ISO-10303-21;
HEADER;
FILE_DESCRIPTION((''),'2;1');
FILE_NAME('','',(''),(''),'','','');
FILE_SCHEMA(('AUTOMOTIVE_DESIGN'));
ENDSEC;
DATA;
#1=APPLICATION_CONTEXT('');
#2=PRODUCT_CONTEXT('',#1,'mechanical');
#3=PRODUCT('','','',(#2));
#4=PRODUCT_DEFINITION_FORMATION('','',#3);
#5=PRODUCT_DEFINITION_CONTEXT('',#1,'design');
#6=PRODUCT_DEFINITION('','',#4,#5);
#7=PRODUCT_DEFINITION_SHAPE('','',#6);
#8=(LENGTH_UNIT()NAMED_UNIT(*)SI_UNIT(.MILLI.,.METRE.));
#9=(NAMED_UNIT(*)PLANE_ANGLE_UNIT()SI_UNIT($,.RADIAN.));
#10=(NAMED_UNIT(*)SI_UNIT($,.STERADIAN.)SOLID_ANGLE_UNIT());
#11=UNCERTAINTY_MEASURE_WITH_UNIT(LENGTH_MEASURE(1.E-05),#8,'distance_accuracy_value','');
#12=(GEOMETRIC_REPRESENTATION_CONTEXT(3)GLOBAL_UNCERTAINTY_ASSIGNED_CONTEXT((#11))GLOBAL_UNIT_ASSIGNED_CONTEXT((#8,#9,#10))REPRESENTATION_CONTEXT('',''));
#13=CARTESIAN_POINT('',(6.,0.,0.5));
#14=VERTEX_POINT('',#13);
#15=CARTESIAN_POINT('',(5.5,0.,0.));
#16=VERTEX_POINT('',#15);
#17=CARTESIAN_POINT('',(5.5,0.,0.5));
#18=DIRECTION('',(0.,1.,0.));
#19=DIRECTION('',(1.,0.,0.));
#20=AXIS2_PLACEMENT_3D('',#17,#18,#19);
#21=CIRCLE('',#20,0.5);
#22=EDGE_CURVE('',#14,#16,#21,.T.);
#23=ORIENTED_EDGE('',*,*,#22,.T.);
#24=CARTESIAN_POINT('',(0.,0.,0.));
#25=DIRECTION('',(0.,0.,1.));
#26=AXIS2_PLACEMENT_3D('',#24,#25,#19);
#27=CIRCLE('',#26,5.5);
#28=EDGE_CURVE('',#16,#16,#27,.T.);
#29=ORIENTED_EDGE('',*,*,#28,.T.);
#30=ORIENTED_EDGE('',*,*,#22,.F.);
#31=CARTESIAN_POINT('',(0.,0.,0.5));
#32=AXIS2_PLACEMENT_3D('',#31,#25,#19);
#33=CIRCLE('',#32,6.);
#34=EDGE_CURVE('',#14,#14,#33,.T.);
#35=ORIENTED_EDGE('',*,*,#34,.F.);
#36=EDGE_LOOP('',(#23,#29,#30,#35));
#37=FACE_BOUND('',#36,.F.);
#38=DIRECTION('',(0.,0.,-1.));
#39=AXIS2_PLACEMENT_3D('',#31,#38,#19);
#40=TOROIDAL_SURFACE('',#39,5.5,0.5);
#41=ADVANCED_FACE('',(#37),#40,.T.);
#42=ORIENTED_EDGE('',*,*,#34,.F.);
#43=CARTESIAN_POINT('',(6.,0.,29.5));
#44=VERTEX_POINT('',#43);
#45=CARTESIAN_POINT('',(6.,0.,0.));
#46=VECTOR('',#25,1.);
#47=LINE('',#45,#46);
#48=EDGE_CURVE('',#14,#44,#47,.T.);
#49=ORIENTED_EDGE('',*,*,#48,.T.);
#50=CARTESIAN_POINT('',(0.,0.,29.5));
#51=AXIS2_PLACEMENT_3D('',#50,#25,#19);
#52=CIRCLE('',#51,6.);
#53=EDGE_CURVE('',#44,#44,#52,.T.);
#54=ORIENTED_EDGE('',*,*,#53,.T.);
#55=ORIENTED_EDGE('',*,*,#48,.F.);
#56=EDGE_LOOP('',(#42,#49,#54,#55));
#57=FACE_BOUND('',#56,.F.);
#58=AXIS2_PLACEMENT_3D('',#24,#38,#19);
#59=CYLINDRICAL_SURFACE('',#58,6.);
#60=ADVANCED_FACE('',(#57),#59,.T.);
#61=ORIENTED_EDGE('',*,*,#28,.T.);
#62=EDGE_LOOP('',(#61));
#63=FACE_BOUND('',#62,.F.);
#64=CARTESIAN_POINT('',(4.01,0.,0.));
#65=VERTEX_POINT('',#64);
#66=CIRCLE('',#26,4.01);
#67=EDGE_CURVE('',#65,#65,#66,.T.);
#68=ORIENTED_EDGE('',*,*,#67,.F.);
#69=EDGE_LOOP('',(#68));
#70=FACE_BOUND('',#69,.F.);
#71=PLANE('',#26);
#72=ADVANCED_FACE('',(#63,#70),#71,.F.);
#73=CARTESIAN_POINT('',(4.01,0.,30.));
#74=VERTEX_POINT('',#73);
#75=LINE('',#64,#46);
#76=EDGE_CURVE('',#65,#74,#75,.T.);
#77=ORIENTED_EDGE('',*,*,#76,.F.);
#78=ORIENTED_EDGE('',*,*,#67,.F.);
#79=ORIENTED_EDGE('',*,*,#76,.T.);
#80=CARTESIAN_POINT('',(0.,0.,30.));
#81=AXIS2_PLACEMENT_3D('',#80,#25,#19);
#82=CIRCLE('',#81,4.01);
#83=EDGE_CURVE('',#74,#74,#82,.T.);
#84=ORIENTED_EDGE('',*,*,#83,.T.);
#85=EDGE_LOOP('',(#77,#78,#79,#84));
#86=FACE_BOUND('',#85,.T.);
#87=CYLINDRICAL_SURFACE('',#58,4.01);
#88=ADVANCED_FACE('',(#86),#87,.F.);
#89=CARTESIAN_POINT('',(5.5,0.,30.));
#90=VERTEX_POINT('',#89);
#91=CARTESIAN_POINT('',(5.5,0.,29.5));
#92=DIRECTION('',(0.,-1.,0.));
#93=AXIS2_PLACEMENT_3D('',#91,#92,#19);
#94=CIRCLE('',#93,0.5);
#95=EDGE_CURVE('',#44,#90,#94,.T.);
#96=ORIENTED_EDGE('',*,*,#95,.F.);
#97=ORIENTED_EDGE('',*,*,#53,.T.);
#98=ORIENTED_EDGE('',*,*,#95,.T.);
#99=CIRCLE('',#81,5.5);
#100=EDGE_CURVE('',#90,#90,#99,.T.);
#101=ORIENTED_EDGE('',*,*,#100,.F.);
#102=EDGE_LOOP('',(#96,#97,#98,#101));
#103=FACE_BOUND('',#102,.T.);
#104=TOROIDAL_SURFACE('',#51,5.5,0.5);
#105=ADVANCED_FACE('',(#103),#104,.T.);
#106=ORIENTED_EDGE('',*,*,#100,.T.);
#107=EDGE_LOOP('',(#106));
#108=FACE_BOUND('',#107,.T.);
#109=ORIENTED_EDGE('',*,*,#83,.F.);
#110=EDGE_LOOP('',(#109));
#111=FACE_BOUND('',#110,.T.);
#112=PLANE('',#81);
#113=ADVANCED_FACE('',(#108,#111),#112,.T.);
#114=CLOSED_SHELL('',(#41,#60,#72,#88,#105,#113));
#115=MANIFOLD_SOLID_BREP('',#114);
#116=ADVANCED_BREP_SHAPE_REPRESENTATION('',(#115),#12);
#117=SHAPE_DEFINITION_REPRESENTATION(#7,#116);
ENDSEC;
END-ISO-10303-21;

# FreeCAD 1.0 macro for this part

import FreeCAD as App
import Part
import Sketcher
from FreeCAD import Vector


def edges_at(feature, points):
    """Names of the edges that pass closest to the given points."""
    edges = feature.Shape.Edges
    near = lambda p: min(range(len(edges)), key=lambda i: edges[i].distToShape(Part.Vertex(*p))[0])
    return sorted({f"Edge{near(p) + 1}" for p in points})

doc = App.newDocument("Part")
body = doc.addObject("PartDesign::Body", "Body")

# Sketch on XY plane
sketch1 = body.newObject("Sketcher::SketchObject", "Sketch")
sketch1.AttachmentSupport = (doc.getObject("XY_Plane"), [""])
sketch1.MapMode = "FlatFace"
sketch1.addGeometry([
    Part.Circle(Vector(0, 0, 0), Vector(0, 0, 1), 6),
    Part.Circle(Vector(0, 0, 0), Vector(0, 0, 1), 4),
], False)
sketch1.addConstraint([
    Sketcher.Constraint("Coincident", 0, 3, -1, 1),
    Sketcher.Constraint("Coincident", 1, 3, -1, 1),
    Sketcher.Constraint("Diameter", 0, 12.0),
    Sketcher.Constraint("Diameter", 1, 8.02),
])
pad1 = body.newObject("PartDesign::Pad", "Pad")
pad1.Profile = sketch1
pad1.Length = 30
doc.recompute()

fillet = body.newObject("PartDesign::Fillet", "Fillet")
fillet.Base = (pad1, edges_at(pad1, [(-6, 0, 0), (-6, 0, 30)]))
fillet.Radius = 0.5

doc.recompute()
